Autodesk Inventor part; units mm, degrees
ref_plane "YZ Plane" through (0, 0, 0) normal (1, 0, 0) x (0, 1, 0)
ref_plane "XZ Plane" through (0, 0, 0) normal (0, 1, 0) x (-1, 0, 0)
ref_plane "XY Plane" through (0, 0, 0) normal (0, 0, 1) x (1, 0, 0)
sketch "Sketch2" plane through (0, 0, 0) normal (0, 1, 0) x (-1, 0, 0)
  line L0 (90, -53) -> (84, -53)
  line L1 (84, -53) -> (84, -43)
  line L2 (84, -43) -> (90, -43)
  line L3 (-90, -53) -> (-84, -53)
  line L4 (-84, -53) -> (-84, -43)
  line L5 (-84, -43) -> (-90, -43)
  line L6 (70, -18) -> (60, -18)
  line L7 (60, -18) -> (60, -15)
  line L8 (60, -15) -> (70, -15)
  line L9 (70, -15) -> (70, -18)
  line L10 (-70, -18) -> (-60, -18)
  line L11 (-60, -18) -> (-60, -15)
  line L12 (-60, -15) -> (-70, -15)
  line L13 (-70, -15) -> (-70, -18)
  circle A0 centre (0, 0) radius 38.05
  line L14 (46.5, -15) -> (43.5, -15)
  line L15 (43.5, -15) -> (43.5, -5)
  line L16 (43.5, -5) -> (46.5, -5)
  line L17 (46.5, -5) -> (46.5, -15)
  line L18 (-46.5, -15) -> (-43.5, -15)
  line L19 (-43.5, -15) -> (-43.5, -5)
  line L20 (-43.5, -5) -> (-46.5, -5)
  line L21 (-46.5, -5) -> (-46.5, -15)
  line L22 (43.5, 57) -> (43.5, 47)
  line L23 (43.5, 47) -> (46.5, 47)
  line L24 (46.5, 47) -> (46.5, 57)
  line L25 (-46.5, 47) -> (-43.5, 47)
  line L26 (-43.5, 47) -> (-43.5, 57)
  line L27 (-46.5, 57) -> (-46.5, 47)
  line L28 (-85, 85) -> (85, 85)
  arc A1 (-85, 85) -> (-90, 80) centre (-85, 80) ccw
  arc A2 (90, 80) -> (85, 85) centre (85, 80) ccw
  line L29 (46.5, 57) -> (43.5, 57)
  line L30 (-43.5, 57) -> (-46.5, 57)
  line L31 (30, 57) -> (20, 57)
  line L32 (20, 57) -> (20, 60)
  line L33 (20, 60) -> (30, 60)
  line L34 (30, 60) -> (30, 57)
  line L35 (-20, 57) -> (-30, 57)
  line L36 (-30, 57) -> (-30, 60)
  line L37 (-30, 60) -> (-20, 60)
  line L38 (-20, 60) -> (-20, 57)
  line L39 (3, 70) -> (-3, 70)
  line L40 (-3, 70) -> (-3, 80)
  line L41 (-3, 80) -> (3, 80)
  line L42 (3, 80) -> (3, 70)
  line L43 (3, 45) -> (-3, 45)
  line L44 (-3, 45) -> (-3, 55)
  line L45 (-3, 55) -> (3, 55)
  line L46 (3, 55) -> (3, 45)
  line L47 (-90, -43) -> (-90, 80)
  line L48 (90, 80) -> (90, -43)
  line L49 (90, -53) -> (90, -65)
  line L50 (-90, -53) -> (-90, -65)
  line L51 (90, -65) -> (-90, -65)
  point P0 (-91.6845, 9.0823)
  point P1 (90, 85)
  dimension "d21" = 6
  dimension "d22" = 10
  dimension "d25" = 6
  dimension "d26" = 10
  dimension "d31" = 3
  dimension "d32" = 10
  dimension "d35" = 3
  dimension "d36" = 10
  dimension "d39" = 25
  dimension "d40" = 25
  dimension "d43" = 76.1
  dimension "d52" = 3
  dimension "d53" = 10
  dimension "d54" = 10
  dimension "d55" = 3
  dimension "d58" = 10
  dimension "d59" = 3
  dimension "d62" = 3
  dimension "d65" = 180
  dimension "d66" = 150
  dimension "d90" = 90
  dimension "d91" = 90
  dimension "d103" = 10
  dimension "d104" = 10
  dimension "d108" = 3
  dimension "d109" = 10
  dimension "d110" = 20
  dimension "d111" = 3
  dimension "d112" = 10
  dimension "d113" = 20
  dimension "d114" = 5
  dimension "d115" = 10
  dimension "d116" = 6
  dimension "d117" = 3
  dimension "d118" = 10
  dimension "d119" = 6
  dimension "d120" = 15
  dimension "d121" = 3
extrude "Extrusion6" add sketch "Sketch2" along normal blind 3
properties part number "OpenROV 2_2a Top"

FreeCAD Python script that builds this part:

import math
import FreeCAD as App
import Part
import Sketcher

doc = App.newDocument("Part")
params = doc.addObject("Spreadsheet::Sheet", "Params")
for row, (alias, value) in enumerate([
    ("sketch1_radius", "5 mm"),
    ("sketch1_diameter", "76.1 mm"),
    ("sketch1_width", "6 mm"),
    ("sketch1_width2", "180 mm"),
    ("sketch1_width3", "10 mm"),
    ("pad1_length", "3 mm"),
], start=1):
    params.set(f"A{row}", alias)
    params.set(f"B{row}", "=" + value)
    params.setAlias(f"B{row}", alias)

body = doc.addObject("PartDesign::Body", "Body")

# Sketch on XZ plane
sketch1 = doc.addObject("Sketcher::SketchObject", "Sketch")
body.addObject(sketch1)
sketch1.AttachmentSupport = (doc.XZ_Plane, [""])
sketch1.MapMode = "FlatFace"
sketch1.addGeometry([
    Part.LineSegment(App.Vector(-90, -65, 0), App.Vector(-90, -53, 0)),  # 0
    Part.LineSegment(App.Vector(-90, -53, 0), App.Vector(-84, -53, 0)),  # 1
    Part.LineSegment(App.Vector(-84, -53, 0), App.Vector(-84, -43, 0)),  # 2
    Part.LineSegment(App.Vector(-84, -43, 0), App.Vector(-90, -43, 0)),  # 3
    Part.LineSegment(App.Vector(-90, -43, 0), App.Vector(-90, 80, 0)),  # 4
    Part.ArcOfCircle(Part.Circle(App.Vector(-85, 80, 0), App.Vector(0, 0, 1), 5), math.radians(90), math.radians(180)),  # 5
    Part.LineSegment(App.Vector(-85, 85, 0), App.Vector(85, 85, 0)),  # 6
    Part.ArcOfCircle(Part.Circle(App.Vector(85, 80, 0), App.Vector(0, 0, 1), 5), math.radians(0), math.radians(90)),  # 7
    Part.LineSegment(App.Vector(90, 80, 0), App.Vector(90, -43, 0)),  # 8
    Part.LineSegment(App.Vector(90, -43, 0), App.Vector(84, -43, 0)),  # 9
    Part.LineSegment(App.Vector(84, -43, 0), App.Vector(84, -53, 0)),  # 10
    Part.LineSegment(App.Vector(84, -53, 0), App.Vector(90, -53, 0)),  # 11
    Part.LineSegment(App.Vector(90, -53, 0), App.Vector(90, -65, 0)),  # 12
    Part.LineSegment(App.Vector(90, -65, 0), App.Vector(-90, -65, 0)),  # 13
    Part.LineSegment(App.Vector(60, -18, 0), App.Vector(70, -18, 0)),  # 14
    Part.LineSegment(App.Vector(70, -18, 0), App.Vector(70, -15, 0)),  # 15
    Part.LineSegment(App.Vector(70, -15, 0), App.Vector(60, -15, 0)),  # 16
    Part.LineSegment(App.Vector(60, -15, 0), App.Vector(60, -18, 0)),  # 17
    Part.LineSegment(App.Vector(43.5, -15, 0), App.Vector(46.5, -15, 0)),  # 18
    Part.LineSegment(App.Vector(46.5, -15, 0), App.Vector(46.5, -5, 0)),  # 19
    Part.LineSegment(App.Vector(46.5, -5, 0), App.Vector(43.5, -5, 0)),  # 20
    Part.LineSegment(App.Vector(43.5, -5, 0), App.Vector(43.5, -15, 0)),  # 21
    Part.Circle(App.Vector(0, 0, 0), App.Vector(0, 0, 1), 38),  # 22
    Part.LineSegment(App.Vector(-46.5, -5, 0), App.Vector(-46.5, -15, 0)),  # 23
    Part.LineSegment(App.Vector(-46.5, -15, 0), App.Vector(-43.5, -15, 0)),  # 24
    Part.LineSegment(App.Vector(-43.5, -15, 0), App.Vector(-43.5, -5, 0)),  # 25
    Part.LineSegment(App.Vector(-43.5, -5, 0), App.Vector(-46.5, -5, 0)),  # 26
    Part.LineSegment(App.Vector(-70, -15, 0), App.Vector(-70, -18, 0)),  # 27
    Part.LineSegment(App.Vector(-70, -18, 0), App.Vector(-60, -18, 0)),  # 28
    Part.LineSegment(App.Vector(-60, -18, 0), App.Vector(-60, -15, 0)),  # 29
    Part.LineSegment(App.Vector(-60, -15, 0), App.Vector(-70, -15, 0)),  # 30
    Part.LineSegment(App.Vector(43.5, 47, 0), App.Vector(46.5, 47, 0)),  # 31
    Part.LineSegment(App.Vector(46.5, 47, 0), App.Vector(46.5, 57, 0)),  # 32
    Part.LineSegment(App.Vector(46.5, 57, 0), App.Vector(43.5, 57, 0)),  # 33
    Part.LineSegment(App.Vector(43.5, 57, 0), App.Vector(43.5, 47, 0)),  # 34
    Part.LineSegment(App.Vector(20, 60, 0), App.Vector(20, 57, 0)),  # 35
    Part.LineSegment(App.Vector(20, 57, 0), App.Vector(30, 57, 0)),  # 36
    Part.LineSegment(App.Vector(30, 57, 0), App.Vector(30, 60, 0)),  # 37
    Part.LineSegment(App.Vector(30, 60, 0), App.Vector(20, 60, 0)),  # 38
    Part.LineSegment(App.Vector(-3, 55, 0), App.Vector(-3, 45, 0)),  # 39
    Part.LineSegment(App.Vector(-3, 45, 0), App.Vector(3, 45, 0)),  # 40
    Part.LineSegment(App.Vector(3, 45, 0), App.Vector(3, 55, 0)),  # 41
    Part.LineSegment(App.Vector(3, 55, 0), App.Vector(-3, 55, 0)),  # 42
    Part.LineSegment(App.Vector(-30, 60, 0), App.Vector(-30, 57, 0)),  # 43
    Part.LineSegment(App.Vector(-30, 57, 0), App.Vector(-20, 57, 0)),  # 44
    Part.LineSegment(App.Vector(-20, 57, 0), App.Vector(-20, 60, 0)),  # 45
    Part.LineSegment(App.Vector(-20, 60, 0), App.Vector(-30, 60, 0)),  # 46
    Part.LineSegment(App.Vector(-3, 80, 0), App.Vector(-3, 70, 0)),  # 47
    Part.LineSegment(App.Vector(-3, 70, 0), App.Vector(3, 70, 0)),  # 48
    Part.LineSegment(App.Vector(3, 70, 0), App.Vector(3, 80, 0)),  # 49
    Part.LineSegment(App.Vector(3, 80, 0), App.Vector(-3, 80, 0)),  # 50
    Part.LineSegment(App.Vector(-43.5, 47, 0), App.Vector(-43.5, 57, 0)),  # 51
    Part.LineSegment(App.Vector(-43.5, 57, 0), App.Vector(-46.5, 57, 0)),  # 52
    Part.LineSegment(App.Vector(-46.5, 57, 0), App.Vector(-46.5, 47, 0)),  # 53
    Part.LineSegment(App.Vector(-46.5, 47, 0), App.Vector(-43.5, 47, 0)),  # 54
], False)
sketch1.addConstraint([
    Sketcher.Constraint("Coincident", 0, 2, 1, 1),
    Sketcher.Constraint("Coincident", 1, 2, 2, 1),
    Sketcher.Constraint("Coincident", 2, 2, 3, 1),
    Sketcher.Constraint("Coincident", 3, 2, 4, 1),
    Sketcher.Constraint("Tangent", 4, 2, 5, 2),
    Sketcher.Constraint("Tangent", 5, 1, 6, 1),
    Sketcher.Constraint("Tangent", 6, 2, 7, 2),
    Sketcher.Constraint("Tangent", 7, 1, 8, 1),
    Sketcher.Constraint("Coincident", 8, 2, 9, 1),
    Sketcher.Constraint("Coincident", 9, 2, 10, 1),
    Sketcher.Constraint("Coincident", 10, 2, 11, 1),
    Sketcher.Constraint("Coincident", 11, 2, 12, 1),
    Sketcher.Constraint("Coincident", 12, 2, 13, 1),
    Sketcher.Constraint("Coincident", 13, 2, 0, 1),
    Sketcher.Constraint("Coincident", 14, 2, 15, 1),
    Sketcher.Constraint("Coincident", 15, 2, 16, 1),
    Sketcher.Constraint("Coincident", 16, 2, 17, 1),
    Sketcher.Constraint("Coincident", 17, 2, 14, 1),
    Sketcher.Constraint("Coincident", 18, 2, 19, 1),
    Sketcher.Constraint("Coincident", 19, 2, 20, 1),
    Sketcher.Constraint("Coincident", 20, 2, 21, 1),
    Sketcher.Constraint("Coincident", 21, 2, 18, 1),
    Sketcher.Constraint("Coincident", 23, 2, 24, 1),
    Sketcher.Constraint("Coincident", 24, 2, 25, 1),
    Sketcher.Constraint("Coincident", 25, 2, 26, 1),
    Sketcher.Constraint("Coincident", 26, 2, 23, 1),
    Sketcher.Constraint("Coincident", 27, 2, 28, 1),
    Sketcher.Constraint("Coincident", 28, 2, 29, 1),
    Sketcher.Constraint("Coincident", 29, 2, 30, 1),
    Sketcher.Constraint("Coincident", 30, 2, 27, 1),
    Sketcher.Constraint("Coincident", 31, 2, 32, 1),
    Sketcher.Constraint("Coincident", 32, 2, 33, 1),
    Sketcher.Constraint("Coincident", 33, 2, 34, 1),
    Sketcher.Constraint("Coincident", 34, 2, 31, 1),
    Sketcher.Constraint("Coincident", 35, 2, 36, 1),
    Sketcher.Constraint("Coincident", 36, 2, 37, 1),
    Sketcher.Constraint("Coincident", 37, 2, 38, 1),
    Sketcher.Constraint("Coincident", 38, 2, 35, 1),
    Sketcher.Constraint("Coincident", 39, 2, 40, 1),
    Sketcher.Constraint("Coincident", 40, 2, 41, 1),
    Sketcher.Constraint("Coincident", 41, 2, 42, 1),
    Sketcher.Constraint("Coincident", 42, 2, 39, 1),
    Sketcher.Constraint("Coincident", 43, 2, 44, 1),
    Sketcher.Constraint("Coincident", 44, 2, 45, 1),
    Sketcher.Constraint("Coincident", 45, 2, 46, 1),
    Sketcher.Constraint("Coincident", 46, 2, 43, 1),
    Sketcher.Constraint("Coincident", 47, 2, 48, 1),
    Sketcher.Constraint("Coincident", 48, 2, 49, 1),
    Sketcher.Constraint("Coincident", 49, 2, 50, 1),
    Sketcher.Constraint("Coincident", 50, 2, 47, 1),
    Sketcher.Constraint("Coincident", 51, 2, 52, 1),
    Sketcher.Constraint("Coincident", 52, 2, 53, 1),
    Sketcher.Constraint("Coincident", 53, 2, 54, 1),
    Sketcher.Constraint("Coincident", 54, 2, 51, 1),
    Sketcher.Constraint("Vertical", 0),
    Sketcher.Constraint("Horizontal", 1),
    Sketcher.Constraint("Vertical", 2),
    Sketcher.Constraint("Horizontal", 3),
    Sketcher.Constraint("Vertical", 4),
    Sketcher.Constraint("Horizontal", 6),
    Sketcher.Constraint("Vertical", 8),
    Sketcher.Constraint("Horizontal", 9),
    Sketcher.Constraint("Vertical", 10),
    Sketcher.Constraint("Horizontal", 11),
    Sketcher.Constraint("Vertical", 12),
    Sketcher.Constraint("Horizontal", 13),
    Sketcher.Constraint("Horizontal", 14),
    Sketcher.Constraint("Vertical", 15),
    Sketcher.Constraint("Horizontal", 16),
    Sketcher.Constraint("Vertical", 17),
    Sketcher.Constraint("Horizontal", 18),
    Sketcher.Constraint("Vertical", 19),
    Sketcher.Constraint("Horizontal", 20),
    Sketcher.Constraint("Vertical", 21),
    Sketcher.Constraint("Vertical", 23),
    Sketcher.Constraint("Horizontal", 24),
    Sketcher.Constraint("Vertical", 25),
    Sketcher.Constraint("Horizontal", 26),
    Sketcher.Constraint("Vertical", 27),
    Sketcher.Constraint("Horizontal", 28),
    Sketcher.Constraint("Vertical", 29),
    Sketcher.Constraint("Horizontal", 30),
    Sketcher.Constraint("Horizontal", 31),
    Sketcher.Constraint("Vertical", 32),
    Sketcher.Constraint("Horizontal", 33),
    Sketcher.Constraint("Vertical", 34),
    Sketcher.Constraint("Vertical", 35),
    Sketcher.Constraint("Horizontal", 36),
    Sketcher.Constraint("Vertical", 37),
    Sketcher.Constraint("Horizontal", 38),
    Sketcher.Constraint("Vertical", 39),
    Sketcher.Constraint("Horizontal", 40),
    Sketcher.Constraint("Vertical", 41),
    Sketcher.Constraint("Horizontal", 42),
    Sketcher.Constraint("Vertical", 43),
    Sketcher.Constraint("Horizontal", 44),
    Sketcher.Constraint("Vertical", 45),
    Sketcher.Constraint("Horizontal", 46),
    Sketcher.Constraint("Vertical", 47),
    Sketcher.Constraint("Horizontal", 48),
    Sketcher.Constraint("Vertical", 49),
    Sketcher.Constraint("Horizontal", 50),
    Sketcher.Constraint("Vertical", 51),
    Sketcher.Constraint("Horizontal", 52),
    Sketcher.Constraint("Vertical", 53),
    Sketcher.Constraint("Horizontal", 54),
    Sketcher.Constraint("Coincident", 22, 3, -1, 1),
    Sketcher.Constraint("Equal", 5, 7),
    Sketcher.Constraint("Symmetric", 3, 2, 8, 2, -2),
    Sketcher.Constraint("Symmetric", 1, 2, 10, 2, -2),
    Sketcher.Constraint("Symmetric", 18, 2, 23, 2, -2),
    Sketcher.Constraint("Symmetric", 20, 2, 25, 2, -2),
    Sketcher.Constraint("Symmetric", 14, 2, 27, 2, -2),
    Sketcher.Constraint("Symmetric", 16, 2, 29, 2, -2),
    Sketcher.Constraint("Symmetric", 36, 2, 43, 2, -2),
    Sketcher.Constraint("Symmetric", 38, 2, 45, 2, -2),
    Sketcher.Constraint("Symmetric", 33, 2, 51, 2, -2),
    Sketcher.Constraint("Symmetric", 31, 2, 53, 2, -2),
    Sketcher.Constraint("Horizontal", 16, 2, 18, 2),
    Sketcher.Constraint("Horizontal", 33, 2, 35, 2),
    Sketcher.Constraint("Horizontal", 7, 1, 49, 2),
    Sketcher.Constraint("Vertical", 0, 2, 3, 2),
    Sketcher.Constraint("Vertical", 8, 2, 11, 2),
    Sketcher.Constraint("Vertical", 19, 2, 31, 2),
    Sketcher.Constraint("Vertical", 21, 2, 33, 2),
    Sketcher.Constraint("Vertical", 42, 2, 47, 2),
    Sketcher.Constraint("Vertical", 41, 2, 48, 2),
    Sketcher.Constraint("Equal", 30, 36),
    Sketcher.Constraint("Equal", 11, 40),
    Sketcher.Constraint("Equal", 46, 2),
    Sketcher.Constraint("Equal", 54, 15),
    Sketcher.Constraint("Equal", 10, 19),
    Sketcher.Constraint("Equal", 25, 32),
    Sketcher.Constraint("Equal", 29, 35),
    Sketcher.Constraint("Equal", 34, 39),
    Sketcher.Constraint("Equal", 41, 47),
    Sketcher.Constraint("Radius", 5, 5.0),
    Sketcher.Constraint("Diameter", 22, 76.1),
    Sketcher.Constraint("DistanceX", 1, 1, 1, 2, 6.0),
    Sketcher.Constraint("DistanceX", 13, 2, 13, 1, 180.0),
    Sketcher.Constraint("DistanceX", 14, 1, 14, 2, 10.0),
    Sketcher.Constraint("DistanceX", 18, 1, 18, 2, 3.0),
    Sketcher.Constraint("DistanceY", 15, 2, -1, 1, 15.0),
    Sketcher.Constraint("DistanceX", -1, 1, 35, 2, 20.0),
    Sketcher.Constraint("DistanceX", 39, 2, -1, 1, 3.0),
    Sketcher.Constraint("DistanceY", 9, 2, 14, 2, 25.0),
    Sketcher.Constraint("DistanceX", 14, 2, 8, 2, 20.0),
    Sketcher.Constraint("DistanceY", 39, 2, 38, 2, 15.0),
    Sketcher.Constraint("DistanceY", 42, 2, 47, 2, 15.0),
    Sketcher.Constraint("DistanceY", 0, 1, 0, 2, 12.0),
    Sketcher.Constraint("DistanceY", 4, 1, 4, 2, 123.0),
    Sketcher.Constraint("DistanceX", -1, 1, 18, 2, 46.5),
])
sketch1.setExpression("Constraints[136]", "Params.sketch1_radius")
sketch1.setExpression("Constraints[137]", "Params.sketch1_diameter")
sketch1.setExpression("Constraints[138]", "Params.sketch1_width")
sketch1.setExpression("Constraints[139]", "Params.sketch1_width2")
sketch1.setExpression("Constraints[140]", "Params.sketch1_width3")
pad1 = doc.addObject("PartDesign::Pad", "Pad")
body.addObject(pad1)
pad1.Profile = sketch1
pad1.setExpression("Length", "Params.pad1_length")
pad1.Reversed = True

doc.recompute()
